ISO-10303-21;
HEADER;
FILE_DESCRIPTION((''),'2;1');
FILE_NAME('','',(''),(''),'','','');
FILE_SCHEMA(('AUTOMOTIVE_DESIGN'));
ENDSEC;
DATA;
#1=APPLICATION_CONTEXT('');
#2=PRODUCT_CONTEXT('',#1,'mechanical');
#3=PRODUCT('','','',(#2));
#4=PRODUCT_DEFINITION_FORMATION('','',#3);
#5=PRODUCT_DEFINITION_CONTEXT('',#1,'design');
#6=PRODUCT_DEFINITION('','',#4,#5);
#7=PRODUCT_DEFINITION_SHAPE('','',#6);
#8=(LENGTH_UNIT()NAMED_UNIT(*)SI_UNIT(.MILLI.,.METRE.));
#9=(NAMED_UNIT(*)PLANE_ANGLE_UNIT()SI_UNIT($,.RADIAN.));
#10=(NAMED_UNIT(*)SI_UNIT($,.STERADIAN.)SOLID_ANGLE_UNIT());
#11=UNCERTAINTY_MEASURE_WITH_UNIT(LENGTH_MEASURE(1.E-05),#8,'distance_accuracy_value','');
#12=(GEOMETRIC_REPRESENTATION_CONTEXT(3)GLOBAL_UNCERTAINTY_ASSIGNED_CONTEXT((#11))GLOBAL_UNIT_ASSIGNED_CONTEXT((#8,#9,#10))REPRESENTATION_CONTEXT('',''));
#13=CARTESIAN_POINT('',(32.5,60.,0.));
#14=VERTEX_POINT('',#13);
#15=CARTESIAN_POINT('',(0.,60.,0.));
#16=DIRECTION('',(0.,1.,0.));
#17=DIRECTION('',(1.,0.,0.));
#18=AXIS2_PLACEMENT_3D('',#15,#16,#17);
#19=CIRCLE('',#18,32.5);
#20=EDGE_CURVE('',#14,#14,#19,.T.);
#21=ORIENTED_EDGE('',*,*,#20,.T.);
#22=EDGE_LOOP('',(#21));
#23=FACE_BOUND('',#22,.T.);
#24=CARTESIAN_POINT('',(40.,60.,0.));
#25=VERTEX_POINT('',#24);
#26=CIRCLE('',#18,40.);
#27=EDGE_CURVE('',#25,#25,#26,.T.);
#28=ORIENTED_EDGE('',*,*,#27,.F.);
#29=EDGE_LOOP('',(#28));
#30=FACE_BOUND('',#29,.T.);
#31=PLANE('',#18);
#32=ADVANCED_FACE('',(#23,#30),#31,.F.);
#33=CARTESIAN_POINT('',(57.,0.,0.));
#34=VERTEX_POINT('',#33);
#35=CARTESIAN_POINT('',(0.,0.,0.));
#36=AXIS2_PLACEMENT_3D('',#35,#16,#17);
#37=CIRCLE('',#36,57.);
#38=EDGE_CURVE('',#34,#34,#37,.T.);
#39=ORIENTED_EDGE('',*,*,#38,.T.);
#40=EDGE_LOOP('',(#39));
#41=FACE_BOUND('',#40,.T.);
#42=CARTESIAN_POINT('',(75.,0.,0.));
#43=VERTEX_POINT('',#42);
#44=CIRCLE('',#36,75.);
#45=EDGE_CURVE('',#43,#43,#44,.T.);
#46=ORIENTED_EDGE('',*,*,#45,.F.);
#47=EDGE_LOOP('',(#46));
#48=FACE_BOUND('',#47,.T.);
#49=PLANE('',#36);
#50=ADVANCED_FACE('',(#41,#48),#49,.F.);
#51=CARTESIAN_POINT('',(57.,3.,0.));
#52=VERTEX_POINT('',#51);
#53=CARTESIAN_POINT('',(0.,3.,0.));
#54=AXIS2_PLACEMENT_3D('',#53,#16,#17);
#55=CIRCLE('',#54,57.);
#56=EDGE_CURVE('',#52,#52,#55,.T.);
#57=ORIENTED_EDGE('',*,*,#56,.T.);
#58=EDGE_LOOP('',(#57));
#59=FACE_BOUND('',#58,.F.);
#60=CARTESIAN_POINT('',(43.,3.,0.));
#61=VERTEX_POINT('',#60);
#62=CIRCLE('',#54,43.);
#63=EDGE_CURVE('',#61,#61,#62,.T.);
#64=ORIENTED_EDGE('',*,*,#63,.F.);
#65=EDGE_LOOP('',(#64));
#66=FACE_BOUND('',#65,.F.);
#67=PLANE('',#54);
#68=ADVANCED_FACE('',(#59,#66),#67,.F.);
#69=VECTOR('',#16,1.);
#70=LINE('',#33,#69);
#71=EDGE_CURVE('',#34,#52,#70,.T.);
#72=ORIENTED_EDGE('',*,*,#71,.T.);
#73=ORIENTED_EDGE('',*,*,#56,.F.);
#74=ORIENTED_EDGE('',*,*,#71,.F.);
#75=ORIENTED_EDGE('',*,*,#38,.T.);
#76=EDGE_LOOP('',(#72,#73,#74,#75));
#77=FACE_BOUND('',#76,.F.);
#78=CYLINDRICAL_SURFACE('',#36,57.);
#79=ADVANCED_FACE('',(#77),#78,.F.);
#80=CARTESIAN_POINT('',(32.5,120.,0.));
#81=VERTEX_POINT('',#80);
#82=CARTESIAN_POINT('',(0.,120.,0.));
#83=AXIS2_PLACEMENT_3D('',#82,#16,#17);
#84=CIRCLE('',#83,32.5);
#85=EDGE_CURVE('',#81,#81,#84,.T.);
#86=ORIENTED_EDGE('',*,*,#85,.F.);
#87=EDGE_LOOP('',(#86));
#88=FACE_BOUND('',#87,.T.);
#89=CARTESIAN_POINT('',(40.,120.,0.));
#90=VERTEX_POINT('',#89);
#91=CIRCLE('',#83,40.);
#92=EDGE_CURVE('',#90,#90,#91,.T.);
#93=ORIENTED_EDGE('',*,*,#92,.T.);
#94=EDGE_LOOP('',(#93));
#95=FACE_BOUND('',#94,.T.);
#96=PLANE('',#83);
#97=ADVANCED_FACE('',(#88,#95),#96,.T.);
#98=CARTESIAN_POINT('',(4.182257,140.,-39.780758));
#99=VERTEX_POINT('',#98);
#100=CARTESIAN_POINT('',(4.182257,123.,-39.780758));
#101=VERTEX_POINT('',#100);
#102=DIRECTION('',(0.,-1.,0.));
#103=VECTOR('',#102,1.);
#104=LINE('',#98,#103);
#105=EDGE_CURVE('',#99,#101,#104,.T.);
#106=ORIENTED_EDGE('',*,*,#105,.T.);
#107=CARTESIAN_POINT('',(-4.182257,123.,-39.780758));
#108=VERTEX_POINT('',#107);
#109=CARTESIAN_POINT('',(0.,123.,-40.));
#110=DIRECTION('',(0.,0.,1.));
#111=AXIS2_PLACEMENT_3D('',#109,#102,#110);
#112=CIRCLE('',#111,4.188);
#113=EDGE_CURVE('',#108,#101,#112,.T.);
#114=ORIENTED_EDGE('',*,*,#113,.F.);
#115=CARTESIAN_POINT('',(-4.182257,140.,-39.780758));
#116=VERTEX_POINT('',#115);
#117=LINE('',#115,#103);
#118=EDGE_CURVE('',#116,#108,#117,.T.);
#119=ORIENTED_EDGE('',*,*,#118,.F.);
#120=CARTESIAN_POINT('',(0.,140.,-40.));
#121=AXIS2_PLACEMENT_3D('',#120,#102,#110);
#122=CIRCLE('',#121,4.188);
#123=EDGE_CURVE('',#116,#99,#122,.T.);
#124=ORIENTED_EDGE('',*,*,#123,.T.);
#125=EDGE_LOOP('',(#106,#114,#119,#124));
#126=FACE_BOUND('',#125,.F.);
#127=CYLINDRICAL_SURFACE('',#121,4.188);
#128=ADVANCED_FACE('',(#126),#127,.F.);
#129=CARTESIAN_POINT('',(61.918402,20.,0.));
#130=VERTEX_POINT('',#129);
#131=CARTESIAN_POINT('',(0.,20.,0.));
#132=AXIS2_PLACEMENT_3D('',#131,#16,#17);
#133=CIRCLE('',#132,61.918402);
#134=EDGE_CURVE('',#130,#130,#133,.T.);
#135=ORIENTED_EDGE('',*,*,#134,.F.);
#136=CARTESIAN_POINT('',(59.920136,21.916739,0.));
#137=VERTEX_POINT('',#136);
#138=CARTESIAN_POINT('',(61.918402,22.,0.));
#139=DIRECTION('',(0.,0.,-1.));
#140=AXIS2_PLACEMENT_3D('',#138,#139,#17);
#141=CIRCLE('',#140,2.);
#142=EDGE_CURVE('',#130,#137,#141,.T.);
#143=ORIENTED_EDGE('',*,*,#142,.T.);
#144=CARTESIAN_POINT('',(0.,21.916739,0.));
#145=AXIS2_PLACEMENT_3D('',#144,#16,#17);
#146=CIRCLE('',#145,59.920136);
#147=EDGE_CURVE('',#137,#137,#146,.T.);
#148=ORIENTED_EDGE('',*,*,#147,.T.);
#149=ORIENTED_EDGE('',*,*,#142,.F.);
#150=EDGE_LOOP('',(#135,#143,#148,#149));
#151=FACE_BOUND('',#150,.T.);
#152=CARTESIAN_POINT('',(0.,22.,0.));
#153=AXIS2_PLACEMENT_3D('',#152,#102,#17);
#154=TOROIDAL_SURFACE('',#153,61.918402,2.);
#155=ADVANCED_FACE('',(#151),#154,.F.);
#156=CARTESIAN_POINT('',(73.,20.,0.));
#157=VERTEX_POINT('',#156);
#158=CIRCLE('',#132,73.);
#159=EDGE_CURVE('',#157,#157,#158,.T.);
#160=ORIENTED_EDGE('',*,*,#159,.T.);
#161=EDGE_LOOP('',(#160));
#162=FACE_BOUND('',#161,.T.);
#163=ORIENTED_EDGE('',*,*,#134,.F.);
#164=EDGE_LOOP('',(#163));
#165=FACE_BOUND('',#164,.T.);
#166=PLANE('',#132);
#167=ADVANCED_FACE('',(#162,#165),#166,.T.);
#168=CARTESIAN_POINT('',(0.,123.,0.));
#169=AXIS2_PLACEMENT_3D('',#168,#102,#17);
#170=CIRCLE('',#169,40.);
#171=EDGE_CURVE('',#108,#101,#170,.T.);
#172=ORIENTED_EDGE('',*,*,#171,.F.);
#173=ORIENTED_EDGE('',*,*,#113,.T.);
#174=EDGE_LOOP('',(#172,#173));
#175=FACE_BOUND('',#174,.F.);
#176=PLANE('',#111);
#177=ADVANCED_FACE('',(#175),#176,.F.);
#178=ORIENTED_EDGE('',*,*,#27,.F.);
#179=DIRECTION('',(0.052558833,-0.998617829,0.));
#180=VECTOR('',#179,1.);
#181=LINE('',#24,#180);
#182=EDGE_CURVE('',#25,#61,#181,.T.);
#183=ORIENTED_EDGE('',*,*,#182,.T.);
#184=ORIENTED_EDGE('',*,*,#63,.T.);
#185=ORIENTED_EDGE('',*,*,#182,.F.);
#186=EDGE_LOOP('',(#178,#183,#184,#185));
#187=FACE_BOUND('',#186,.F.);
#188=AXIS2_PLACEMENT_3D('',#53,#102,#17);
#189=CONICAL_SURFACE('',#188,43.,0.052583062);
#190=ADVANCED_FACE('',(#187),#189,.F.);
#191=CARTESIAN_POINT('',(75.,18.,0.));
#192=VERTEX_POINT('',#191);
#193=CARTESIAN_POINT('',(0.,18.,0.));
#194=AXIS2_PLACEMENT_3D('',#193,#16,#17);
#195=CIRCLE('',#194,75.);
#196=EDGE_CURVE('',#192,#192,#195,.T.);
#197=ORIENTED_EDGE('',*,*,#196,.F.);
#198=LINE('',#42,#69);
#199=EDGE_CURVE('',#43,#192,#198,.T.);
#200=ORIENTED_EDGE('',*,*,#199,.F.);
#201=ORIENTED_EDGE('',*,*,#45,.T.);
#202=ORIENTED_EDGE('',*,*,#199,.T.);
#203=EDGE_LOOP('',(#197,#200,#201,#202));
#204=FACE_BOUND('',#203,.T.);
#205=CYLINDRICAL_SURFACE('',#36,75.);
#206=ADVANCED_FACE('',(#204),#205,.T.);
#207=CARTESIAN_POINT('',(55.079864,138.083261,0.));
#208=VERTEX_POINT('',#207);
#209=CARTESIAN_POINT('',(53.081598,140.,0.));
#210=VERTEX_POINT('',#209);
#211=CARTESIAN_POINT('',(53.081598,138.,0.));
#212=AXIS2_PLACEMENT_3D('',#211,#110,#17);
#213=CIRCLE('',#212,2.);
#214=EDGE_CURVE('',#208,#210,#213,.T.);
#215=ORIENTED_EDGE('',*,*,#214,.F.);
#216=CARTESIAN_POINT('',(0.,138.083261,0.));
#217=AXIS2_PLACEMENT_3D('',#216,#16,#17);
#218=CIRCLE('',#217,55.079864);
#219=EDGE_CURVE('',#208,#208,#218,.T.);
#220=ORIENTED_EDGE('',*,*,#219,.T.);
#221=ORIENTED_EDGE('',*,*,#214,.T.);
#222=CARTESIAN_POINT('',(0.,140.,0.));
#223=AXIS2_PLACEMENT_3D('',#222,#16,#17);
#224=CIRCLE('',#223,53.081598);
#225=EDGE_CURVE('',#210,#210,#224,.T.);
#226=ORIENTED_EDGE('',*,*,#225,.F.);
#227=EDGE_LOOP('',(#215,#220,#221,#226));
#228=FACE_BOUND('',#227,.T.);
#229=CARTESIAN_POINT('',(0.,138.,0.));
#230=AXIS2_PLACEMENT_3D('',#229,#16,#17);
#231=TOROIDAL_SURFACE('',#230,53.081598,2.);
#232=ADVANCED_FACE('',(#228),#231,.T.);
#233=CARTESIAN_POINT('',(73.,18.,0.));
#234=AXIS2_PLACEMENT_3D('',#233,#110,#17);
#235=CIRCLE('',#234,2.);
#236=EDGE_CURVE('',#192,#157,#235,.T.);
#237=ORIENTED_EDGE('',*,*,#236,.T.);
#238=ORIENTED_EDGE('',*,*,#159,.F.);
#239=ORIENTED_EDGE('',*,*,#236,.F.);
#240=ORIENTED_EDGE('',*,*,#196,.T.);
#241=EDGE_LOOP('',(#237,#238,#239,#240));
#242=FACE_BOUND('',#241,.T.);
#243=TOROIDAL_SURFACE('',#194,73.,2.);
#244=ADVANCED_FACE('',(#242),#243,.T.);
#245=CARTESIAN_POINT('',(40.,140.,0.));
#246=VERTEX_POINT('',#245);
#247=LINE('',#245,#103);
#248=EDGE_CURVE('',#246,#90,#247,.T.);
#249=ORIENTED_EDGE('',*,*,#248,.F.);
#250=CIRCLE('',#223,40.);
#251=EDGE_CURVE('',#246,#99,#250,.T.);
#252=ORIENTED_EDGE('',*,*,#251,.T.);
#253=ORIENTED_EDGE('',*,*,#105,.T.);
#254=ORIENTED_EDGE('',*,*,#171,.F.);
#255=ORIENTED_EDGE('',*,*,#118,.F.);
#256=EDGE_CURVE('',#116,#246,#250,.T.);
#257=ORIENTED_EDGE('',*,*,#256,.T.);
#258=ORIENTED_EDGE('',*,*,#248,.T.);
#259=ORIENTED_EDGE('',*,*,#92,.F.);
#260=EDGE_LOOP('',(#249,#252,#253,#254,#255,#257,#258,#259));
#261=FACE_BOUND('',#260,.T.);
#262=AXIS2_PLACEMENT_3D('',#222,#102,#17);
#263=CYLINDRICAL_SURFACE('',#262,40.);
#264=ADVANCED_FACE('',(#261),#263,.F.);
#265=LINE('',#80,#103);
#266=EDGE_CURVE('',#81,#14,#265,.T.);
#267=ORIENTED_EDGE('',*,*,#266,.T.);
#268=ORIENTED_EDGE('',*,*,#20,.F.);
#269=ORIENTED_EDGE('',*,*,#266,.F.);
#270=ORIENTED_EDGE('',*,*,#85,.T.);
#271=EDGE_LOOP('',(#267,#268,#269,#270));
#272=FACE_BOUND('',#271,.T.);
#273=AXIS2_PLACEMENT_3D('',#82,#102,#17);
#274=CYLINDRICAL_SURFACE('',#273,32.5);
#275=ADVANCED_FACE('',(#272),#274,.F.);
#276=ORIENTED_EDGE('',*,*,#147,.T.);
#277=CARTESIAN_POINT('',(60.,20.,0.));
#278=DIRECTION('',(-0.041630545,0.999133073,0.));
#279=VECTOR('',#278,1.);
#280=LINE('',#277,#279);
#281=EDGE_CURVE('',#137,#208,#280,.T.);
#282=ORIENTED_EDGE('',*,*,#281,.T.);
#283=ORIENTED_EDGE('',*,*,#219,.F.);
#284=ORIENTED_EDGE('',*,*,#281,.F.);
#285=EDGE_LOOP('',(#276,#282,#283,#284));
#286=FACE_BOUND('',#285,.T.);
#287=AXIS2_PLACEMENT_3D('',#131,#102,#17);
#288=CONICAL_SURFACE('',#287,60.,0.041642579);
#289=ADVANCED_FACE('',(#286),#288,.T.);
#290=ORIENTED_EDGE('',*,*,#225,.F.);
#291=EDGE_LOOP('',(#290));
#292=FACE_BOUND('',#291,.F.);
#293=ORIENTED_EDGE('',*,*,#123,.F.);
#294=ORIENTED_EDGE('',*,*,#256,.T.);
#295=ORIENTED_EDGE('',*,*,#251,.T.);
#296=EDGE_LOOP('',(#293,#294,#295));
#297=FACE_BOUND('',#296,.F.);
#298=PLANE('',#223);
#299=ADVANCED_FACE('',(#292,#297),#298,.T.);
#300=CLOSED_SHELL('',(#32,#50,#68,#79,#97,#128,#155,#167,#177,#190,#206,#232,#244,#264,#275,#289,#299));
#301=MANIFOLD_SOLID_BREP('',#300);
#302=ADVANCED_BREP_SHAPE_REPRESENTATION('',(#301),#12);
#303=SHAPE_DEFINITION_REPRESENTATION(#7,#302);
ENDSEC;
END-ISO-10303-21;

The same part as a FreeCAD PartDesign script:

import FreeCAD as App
import Part
import Sketcher
from FreeCAD import Vector
Q = App.Units.Quantity


def edges_at(feature, points):
    """Names of the edges that pass closest to the given points."""
    edges = feature.Shape.Edges
    near = lambda p: min(range(len(edges)), key=lambda i: edges[i].distToShape(Part.Vertex(*p))[0])
    return sorted({f"Edge{near(p) + 1}" for p in points})


def add_polygon(sketch, points):
    """Adds a closed chain of lines whose ends are joined by coincident constraints."""
    first, n = sketch.GeometryCount, len(points)
    for a, b in zip(points, points[1:] + points[:1]):
        sketch.addGeometry(Part.LineSegment(App.Vector(*a, 0), App.Vector(*b, 0)), False)
    for i in range(n):
        sketch.addConstraint(Sketcher.Constraint("Coincident", first + i, 2, first + (i + 1) % n, 1))

doc = App.newDocument("Part")
body = doc.addObject("PartDesign::Body", "Body")

# Sketch on XY plane
sketch1 = body.newObject("Sketcher::SketchObject", "Sketch")
sketch1.AttachmentSupport = (doc.getObject("XY_Plane"), [""])
sketch1.MapMode = "FlatFace"
add_polygon(sketch1, [(57, 3), (57, 0), (75, 0), (75, 20), (60, 20), (55, 140), (40, 140), (40, 120), (32.5, 120), (32.5, 60), (40, 60), (43, 3)])  # lines 0-11
sketch1.addConstraint([
    Sketcher.Constraint("Vertical", 0),
    Sketcher.Constraint("Horizontal", 1),
    Sketcher.Constraint("Vertical", 2),
    Sketcher.Constraint("Horizontal", 3),
    Sketcher.Constraint("Horizontal", 5),
    Sketcher.Constraint("Vertical", 6),
    Sketcher.Constraint("Horizontal", 7),
    Sketcher.Constraint("Vertical", 8),
    Sketcher.Constraint("Horizontal", 9),
    Sketcher.Constraint("Horizontal", 11),
    Sketcher.Constraint("PointOnObject", 0, 2, -1),
    Sketcher.Constraint("Vertical", 6, 2, 9, 2),
    Sketcher.Constraint("Equal", 3, 5),
    Sketcher.Constraint("Equal", 2, 6),
    Sketcher.Constraint("DistanceX", 1, 1, 1, 2, Q("18 mm")),
    Sketcher.Constraint("DistanceY", 0, 2, 0, 1, Q("3 mm")),
    Sketcher.Constraint("DistanceY", 2, 1, 2, 2, Q("20 mm")),
    Sketcher.Constraint("DistanceY", 8, 2, 8, 1, Q("60 mm")),
    Sketcher.Constraint("DistanceX", 7, 2, 7, 1, Q("7.5 mm")),
    Sketcher.Constraint("DistanceX", -1, 1, 0, 2, Q("57 mm")),
    Sketcher.Constraint("DistanceX", -1, 1, 3, 2, Q("60 mm")),
    Sketcher.Constraint("DistanceX", -1, 1, 4, 2, Q("55 mm")),
    Sketcher.Constraint("DistanceY", -1, 1, 4, 2, Q("140 mm")),
    Sketcher.Constraint("DistanceX", -1, 1, 10, 2, Q("43 mm")),
])
revolution = body.newObject("PartDesign::Revolution", "Revolution")
revolution.Profile = sketch1
revolution.ReferenceAxis = (sketch1, ["V_Axis"])
revolution.Angle = 360
doc.recompute()

fillet = body.newObject("PartDesign::Fillet", "Fillet")
fillet.Base = (revolution, edges_at(revolution, [(-75, 20, 0)]))
fillet.Radius = 2
doc.recompute()

fillet2 = body.newObject("PartDesign::Fillet", "Fillet001")
fillet2.Base = (fillet, edges_at(fillet, [(-60, 20, 0)]))
fillet2.Radius = 2
doc.recompute()

fillet3 = body.newObject("PartDesign::Fillet", "Fillet002")
fillet3.Base = (fillet2, edges_at(fillet2, [(-55, 140, 0)]))
fillet3.Radius = 2

# Sketch on XZ plane
sketch2 = body.newObject("Sketcher::SketchObject", "Sketch001")
sketch2.AttachmentSupport = (doc.getObject("XZ_Plane"), [""])
sketch2.MapMode = "FlatFace"
sketch2.AttachmentOffset = App.Placement(Vector(0, 0, -140), App.Rotation())
sketch2.addGeometry(Part.Circle(Vector(0, -40, 0), Vector(0, 0, 1), 4.2), False)
sketch2.addConstraint([
    Sketcher.Constraint("PointOnObject", 0, 3, -2),
    Sketcher.Constraint("Diameter", 0, Q("8.376 mm")),
    Sketcher.Constraint("DistanceY", 0, 3, -1, 1, Q("40 mm")),
])
doc.recompute()
hole = body.newObject("PartDesign::Hole", "Hole")
hole.Profile = sketch2
hole.ThreadType = "None"
hole.Diameter = 8.376
hole.DepthType = "Dimension"
hole.Depth = 17
hole.DrillPoint = "Flat"
hole.Reversed = True

doc.recompute()
